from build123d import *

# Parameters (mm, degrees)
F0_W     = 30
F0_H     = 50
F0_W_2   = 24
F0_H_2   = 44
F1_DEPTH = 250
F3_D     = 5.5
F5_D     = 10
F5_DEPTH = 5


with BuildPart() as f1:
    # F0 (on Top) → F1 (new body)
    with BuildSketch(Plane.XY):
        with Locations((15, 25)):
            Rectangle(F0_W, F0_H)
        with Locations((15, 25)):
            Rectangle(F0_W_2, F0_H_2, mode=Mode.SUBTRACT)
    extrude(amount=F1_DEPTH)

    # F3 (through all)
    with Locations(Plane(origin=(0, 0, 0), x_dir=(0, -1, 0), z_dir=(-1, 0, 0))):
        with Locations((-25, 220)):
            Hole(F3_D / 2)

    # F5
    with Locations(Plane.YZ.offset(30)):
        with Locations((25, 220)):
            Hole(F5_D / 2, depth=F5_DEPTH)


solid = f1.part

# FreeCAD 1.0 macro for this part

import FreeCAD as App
import Part
import Sketcher
Q = App.Units.Quantity

doc = App.newDocument("Part")
body = doc.addObject("PartDesign::Body", "Body")

# Sketch on XY plane
sketch1 = body.newObject("Sketcher::SketchObject", "Sketch")
sketch1.AttachmentSupport = (doc.getObject("XY_Plane"), [""])
sketch1.MapMode = "FlatFace"
sketch1.addGeometry([
    Part.LineSegment(App.Vector(0, 50, 0), App.Vector(0, 0, 0)),  # 0
    Part.LineSegment(App.Vector(0, 0, 0), App.Vector(30, 0, 0)),  # 1
    Part.LineSegment(App.Vector(30, 0, 0), App.Vector(30, 50, 0)),  # 2
    Part.LineSegment(App.Vector(30, 50, 0), App.Vector(0, 50, 0)),  # 3
    Part.LineSegment(App.Vector(27, 3, 0), App.Vector(3, 3, 0)),  # 4
    Part.LineSegment(App.Vector(3, 3, 0), App.Vector(3, 47, 0)),  # 5
    Part.LineSegment(App.Vector(3, 47, 0), App.Vector(27, 47, 0)),  # 6
    Part.LineSegment(App.Vector(27, 47, 0), App.Vector(27, 3, 0)),  # 7
], False)
sketch1.addConstraint([
    Sketcher.Constraint("Coincident", 0, 2, 1, 1),
    Sketcher.Constraint("Coincident", 1, 2, 2, 1),
    Sketcher.Constraint("Coincident", 2, 2, 3, 1),
    Sketcher.Constraint("Coincident", 3, 2, 0, 1),
    Sketcher.Constraint("Coincident", 4, 2, 5, 1),
    Sketcher.Constraint("Coincident", 5, 2, 6, 1),
    Sketcher.Constraint("Coincident", 6, 2, 7, 1),
    Sketcher.Constraint("Coincident", 7, 2, 4, 1),
    Sketcher.Constraint("Vertical", 0),
    Sketcher.Constraint("Horizontal", 1),
    Sketcher.Constraint("Vertical", 2),
    Sketcher.Constraint("Horizontal", 3),
    Sketcher.Constraint("Horizontal", 4),
    Sketcher.Constraint("Vertical", 5),
    Sketcher.Constraint("Horizontal", 6),
    Sketcher.Constraint("Vertical", 7),
    Sketcher.Constraint("Coincident", 0, 2, -1, 1),
    Sketcher.Constraint("DistanceX", 1, 1, 1, 2, Q("30 mm")),
    Sketcher.Constraint("DistanceX", 4, 2, 4, 1, Q("24 mm")),
    Sketcher.Constraint("DistanceY", 0, 2, 0, 1, Q("50 mm")),
    Sketcher.Constraint("DistanceY", 5, 1, 5, 2, Q("44 mm")),
    Sketcher.Constraint("DistanceX", -1, 1, 4, 2, Q("3 mm")),
    Sketcher.Constraint("DistanceY", -1, 1, 4, 2, Q("3 mm")),
])
pad1 = body.newObject("PartDesign::Pad", "Pad")
pad1.Profile = sketch1
pad1.Length = 250

# Sketch on YZ plane
sketch2 = body.newObject("Sketcher::SketchObject", "Sketch001")
sketch2.AttachmentSupport = (doc.getObject("YZ_Plane"), [""])
sketch2.MapMode = "FlatFace"
sketch2.addGeometry(Part.Circle(App.Vector(25, 220, 0), App.Vector(0, 0, 1), 2.8), False)
sketch2.addConstraint([
    Sketcher.Constraint("Diameter", 0, Q("5.5 mm")),
    Sketcher.Constraint("DistanceX", -1, 1, 0, 3, Q("25 mm")),
    Sketcher.Constraint("DistanceY", -1, 1, 0, 3, Q("220 mm")),
])
doc.recompute()
hole = body.newObject("PartDesign::Hole", "Hole")
hole.Profile = sketch2
hole.ThreadType = "None"
hole.Diameter = 5.5
hole.DepthType = "ThroughAll"
hole.Reversed = True

# Sketch on YZ plane
sketch3 = body.newObject("Sketcher::SketchObject", "Sketch002")
sketch3.AttachmentSupport = (doc.getObject("YZ_Plane"), [""])
sketch3.MapMode = "FlatFace"
sketch3.AttachmentOffset = App.Placement(App.Vector(0, 0, 30), App.Rotation())
sketch3.addGeometry(Part.Circle(App.Vector(25, 220, 0), App.Vector(0, 0, 1), 5), False)
sketch3.addConstraint([
    Sketcher.Constraint("Diameter", 0, Q("10 mm")),
    Sketcher.Constraint("DistanceX", -1, 1, 0, 3, Q("25 mm")),
    Sketcher.Constraint("DistanceY", -1, 1, 0, 3, Q("220 mm")),
])
doc.recompute()
hole2 = body.newObject("PartDesign::Hole", "Hole001")
hole2.Profile = sketch3
hole2.ThreadType = "None"
hole2.Diameter = 10
hole2.DepthType = "Dimension"
hole2.Depth = 5
hole2.DrillPoint = "Flat"

doc.recompute()
